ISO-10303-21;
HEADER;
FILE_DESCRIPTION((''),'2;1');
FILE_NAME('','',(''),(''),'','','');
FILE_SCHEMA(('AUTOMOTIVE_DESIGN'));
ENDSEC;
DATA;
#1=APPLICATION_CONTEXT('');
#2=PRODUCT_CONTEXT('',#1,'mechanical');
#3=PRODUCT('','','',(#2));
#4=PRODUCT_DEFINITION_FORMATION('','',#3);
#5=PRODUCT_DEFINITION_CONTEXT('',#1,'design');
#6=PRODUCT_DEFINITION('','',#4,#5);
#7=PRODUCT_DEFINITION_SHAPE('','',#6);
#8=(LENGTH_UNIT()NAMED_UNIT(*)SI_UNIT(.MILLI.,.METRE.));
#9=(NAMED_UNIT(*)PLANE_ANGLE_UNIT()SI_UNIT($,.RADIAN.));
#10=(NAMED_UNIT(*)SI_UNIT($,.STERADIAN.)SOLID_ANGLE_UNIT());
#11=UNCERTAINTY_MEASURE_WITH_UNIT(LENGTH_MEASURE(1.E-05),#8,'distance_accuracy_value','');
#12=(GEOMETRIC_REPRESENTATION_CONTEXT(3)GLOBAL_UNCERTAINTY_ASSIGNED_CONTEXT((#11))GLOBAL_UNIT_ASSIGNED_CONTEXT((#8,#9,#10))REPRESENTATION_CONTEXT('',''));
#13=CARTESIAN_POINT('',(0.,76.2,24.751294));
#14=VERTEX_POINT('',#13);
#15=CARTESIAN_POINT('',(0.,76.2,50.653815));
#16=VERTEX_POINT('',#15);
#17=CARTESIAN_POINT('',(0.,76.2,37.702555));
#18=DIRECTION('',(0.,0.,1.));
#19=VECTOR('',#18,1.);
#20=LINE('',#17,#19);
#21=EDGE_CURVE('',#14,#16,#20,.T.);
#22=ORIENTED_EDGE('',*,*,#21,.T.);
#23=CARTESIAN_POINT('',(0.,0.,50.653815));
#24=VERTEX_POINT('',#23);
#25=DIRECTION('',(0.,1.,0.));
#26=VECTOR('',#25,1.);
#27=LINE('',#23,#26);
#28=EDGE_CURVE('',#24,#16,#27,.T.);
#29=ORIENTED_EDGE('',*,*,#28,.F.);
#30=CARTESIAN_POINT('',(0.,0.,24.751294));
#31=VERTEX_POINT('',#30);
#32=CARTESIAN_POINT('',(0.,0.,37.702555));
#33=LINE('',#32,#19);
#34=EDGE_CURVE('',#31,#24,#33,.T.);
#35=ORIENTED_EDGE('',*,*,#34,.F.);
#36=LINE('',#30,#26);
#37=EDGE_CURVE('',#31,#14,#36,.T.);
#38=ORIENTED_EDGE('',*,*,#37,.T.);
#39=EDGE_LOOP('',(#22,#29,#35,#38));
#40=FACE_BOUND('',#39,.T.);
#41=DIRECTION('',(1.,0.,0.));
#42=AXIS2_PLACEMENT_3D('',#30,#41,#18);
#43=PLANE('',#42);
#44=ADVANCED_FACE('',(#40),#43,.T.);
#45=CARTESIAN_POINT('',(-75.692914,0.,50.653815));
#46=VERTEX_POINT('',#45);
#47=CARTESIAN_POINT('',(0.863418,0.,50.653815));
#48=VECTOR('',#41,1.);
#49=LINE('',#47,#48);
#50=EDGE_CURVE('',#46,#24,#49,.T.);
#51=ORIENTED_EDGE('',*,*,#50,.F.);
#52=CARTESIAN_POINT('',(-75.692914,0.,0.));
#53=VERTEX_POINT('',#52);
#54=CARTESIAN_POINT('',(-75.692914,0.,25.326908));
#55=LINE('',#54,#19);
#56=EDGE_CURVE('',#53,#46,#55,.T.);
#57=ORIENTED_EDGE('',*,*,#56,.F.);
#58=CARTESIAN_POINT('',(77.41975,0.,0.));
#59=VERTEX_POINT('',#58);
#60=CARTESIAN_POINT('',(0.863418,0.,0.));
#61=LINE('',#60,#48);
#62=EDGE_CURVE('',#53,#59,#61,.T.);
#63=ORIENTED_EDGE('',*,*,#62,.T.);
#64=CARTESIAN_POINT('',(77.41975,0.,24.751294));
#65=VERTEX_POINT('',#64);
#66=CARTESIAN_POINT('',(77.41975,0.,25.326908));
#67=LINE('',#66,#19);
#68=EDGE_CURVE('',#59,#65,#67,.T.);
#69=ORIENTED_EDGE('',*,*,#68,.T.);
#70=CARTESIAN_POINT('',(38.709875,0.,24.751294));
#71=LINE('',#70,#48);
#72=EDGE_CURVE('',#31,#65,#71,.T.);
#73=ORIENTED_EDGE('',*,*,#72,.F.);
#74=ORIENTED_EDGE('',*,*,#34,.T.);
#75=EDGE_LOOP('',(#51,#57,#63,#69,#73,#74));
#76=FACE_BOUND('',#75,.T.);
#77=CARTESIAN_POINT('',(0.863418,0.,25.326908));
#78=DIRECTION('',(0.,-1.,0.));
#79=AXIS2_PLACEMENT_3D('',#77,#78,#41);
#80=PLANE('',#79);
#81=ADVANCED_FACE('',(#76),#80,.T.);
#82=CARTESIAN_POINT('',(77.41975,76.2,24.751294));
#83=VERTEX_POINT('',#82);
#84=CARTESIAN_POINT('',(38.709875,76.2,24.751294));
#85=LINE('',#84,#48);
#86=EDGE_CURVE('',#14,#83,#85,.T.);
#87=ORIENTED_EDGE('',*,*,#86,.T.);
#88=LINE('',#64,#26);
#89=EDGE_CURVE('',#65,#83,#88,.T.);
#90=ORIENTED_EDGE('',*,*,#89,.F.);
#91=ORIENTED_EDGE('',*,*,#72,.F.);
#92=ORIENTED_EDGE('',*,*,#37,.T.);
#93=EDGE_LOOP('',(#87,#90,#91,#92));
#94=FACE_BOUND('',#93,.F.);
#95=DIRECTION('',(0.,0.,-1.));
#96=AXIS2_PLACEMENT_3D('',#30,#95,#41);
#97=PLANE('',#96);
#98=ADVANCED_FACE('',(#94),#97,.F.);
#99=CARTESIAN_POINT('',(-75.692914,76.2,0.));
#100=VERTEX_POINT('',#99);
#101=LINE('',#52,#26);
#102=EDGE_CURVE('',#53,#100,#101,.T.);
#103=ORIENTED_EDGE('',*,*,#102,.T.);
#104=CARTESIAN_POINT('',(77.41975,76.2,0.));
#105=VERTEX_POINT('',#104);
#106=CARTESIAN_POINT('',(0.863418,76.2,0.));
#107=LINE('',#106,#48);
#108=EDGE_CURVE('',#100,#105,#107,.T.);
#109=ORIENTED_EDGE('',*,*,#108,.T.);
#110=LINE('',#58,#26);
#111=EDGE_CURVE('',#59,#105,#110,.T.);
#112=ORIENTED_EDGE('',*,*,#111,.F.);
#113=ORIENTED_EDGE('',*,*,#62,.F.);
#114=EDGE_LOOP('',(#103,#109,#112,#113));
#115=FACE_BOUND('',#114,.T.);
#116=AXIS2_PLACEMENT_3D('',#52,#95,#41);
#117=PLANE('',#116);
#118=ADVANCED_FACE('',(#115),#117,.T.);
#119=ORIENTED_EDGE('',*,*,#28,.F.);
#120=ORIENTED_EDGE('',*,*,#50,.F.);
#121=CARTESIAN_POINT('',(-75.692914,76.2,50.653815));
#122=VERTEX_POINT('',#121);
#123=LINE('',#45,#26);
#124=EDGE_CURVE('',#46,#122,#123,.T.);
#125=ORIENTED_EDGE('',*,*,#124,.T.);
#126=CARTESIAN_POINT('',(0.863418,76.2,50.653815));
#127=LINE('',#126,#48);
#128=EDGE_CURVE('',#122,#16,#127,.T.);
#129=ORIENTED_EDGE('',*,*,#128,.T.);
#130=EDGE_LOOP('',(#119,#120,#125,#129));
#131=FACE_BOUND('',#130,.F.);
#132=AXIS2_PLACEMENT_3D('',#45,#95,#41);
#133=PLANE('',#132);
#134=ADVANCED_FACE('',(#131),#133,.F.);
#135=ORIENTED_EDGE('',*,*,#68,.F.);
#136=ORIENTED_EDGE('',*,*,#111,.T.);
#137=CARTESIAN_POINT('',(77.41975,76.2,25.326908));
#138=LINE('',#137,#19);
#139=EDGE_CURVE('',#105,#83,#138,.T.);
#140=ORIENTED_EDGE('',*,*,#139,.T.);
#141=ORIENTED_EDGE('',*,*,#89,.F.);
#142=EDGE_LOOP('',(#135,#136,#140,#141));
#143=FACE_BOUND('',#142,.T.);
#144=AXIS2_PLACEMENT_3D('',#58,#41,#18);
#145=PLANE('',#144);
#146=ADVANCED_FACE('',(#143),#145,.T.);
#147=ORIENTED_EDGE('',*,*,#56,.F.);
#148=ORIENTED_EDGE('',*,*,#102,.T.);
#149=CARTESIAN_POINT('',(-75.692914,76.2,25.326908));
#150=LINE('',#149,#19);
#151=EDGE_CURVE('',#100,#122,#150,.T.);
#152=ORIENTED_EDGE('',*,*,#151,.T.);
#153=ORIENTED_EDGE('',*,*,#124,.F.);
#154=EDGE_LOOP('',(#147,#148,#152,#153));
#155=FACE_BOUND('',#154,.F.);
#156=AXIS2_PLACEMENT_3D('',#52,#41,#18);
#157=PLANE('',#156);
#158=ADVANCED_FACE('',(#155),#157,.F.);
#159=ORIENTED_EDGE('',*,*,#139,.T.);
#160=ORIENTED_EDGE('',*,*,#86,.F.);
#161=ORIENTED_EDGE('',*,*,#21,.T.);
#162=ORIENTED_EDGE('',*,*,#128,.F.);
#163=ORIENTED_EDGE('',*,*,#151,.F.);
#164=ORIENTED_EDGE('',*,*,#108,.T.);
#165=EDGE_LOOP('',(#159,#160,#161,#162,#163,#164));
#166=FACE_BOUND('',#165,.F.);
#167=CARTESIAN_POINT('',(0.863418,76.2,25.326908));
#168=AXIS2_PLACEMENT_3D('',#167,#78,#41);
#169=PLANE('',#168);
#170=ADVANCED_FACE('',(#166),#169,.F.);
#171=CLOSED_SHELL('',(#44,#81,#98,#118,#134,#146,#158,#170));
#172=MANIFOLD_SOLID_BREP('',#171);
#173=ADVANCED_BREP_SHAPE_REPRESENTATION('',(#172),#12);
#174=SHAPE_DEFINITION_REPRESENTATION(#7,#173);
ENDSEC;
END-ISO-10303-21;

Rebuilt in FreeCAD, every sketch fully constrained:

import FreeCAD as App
import Part
import Sketcher
Q = App.Units.Quantity

doc = App.newDocument("Part")
body = doc.addObject("PartDesign::Body", "Body")

# Sketch on XZ plane
sketch1 = body.newObject("Sketcher::SketchObject", "Sketch")
sketch1.AttachmentSupport = (doc.getObject("XZ_Plane"), [""])
sketch1.MapMode = "FlatFace"
sketch1.addGeometry([
    Part.LineSegment(App.Vector(0, 26, 0), App.Vector(0, 0, 0)),
    Part.LineSegment(App.Vector(0, 0, 0), App.Vector(76, 0, 0)),
    Part.LineSegment(App.Vector(76, 0, 0), App.Vector(76, 26, 0)),
    Part.LineSegment(App.Vector(76, 26, 0), App.Vector(0, 26, 0)),
], False)
sketch1.addConstraint([
    Sketcher.Constraint("Coincident", 0, 2, 1, 1),
    Sketcher.Constraint("Coincident", 1, 2, 2, 1),
    Sketcher.Constraint("Coincident", 2, 2, 3, 1),
    Sketcher.Constraint("Coincident", 3, 2, 0, 1),
    Sketcher.Constraint("Vertical", 0),
    Sketcher.Constraint("Horizontal", 1),
    Sketcher.Constraint("Vertical", 2),
    Sketcher.Constraint("Horizontal", 3),
    Sketcher.Constraint("Coincident", 0, 2, -1, 1),
    Sketcher.Constraint("DistanceX", 1, 1, 1, 2, 76.268524),
    Sketcher.Constraint("DistanceY", 0, 2, 0, 1, 25.614712),
])
pad1 = body.newObject("PartDesign::Pad", "Pad")
pad1.Profile = sketch1
pad1.Length = Q("3 in")
body2 = doc.addObject("PartDesign::Body", "Body001")

# Sketch on XZ plane
sketch2 = body2.newObject("Sketcher::SketchObject", "Sketch001")
sketch2.AttachmentSupport = (doc.getObject("XZ_Plane001"), [""])
sketch2.MapMode = "FlatFace"
sketch2.addGeometry([
    Part.LineSegment(App.Vector(-76, 51, 0), App.Vector(-76, 0, 0)),
    Part.LineSegment(App.Vector(-76, 0, 0), App.Vector(77, 0, 0)),
    Part.LineSegment(App.Vector(77, 0, 0), App.Vector(77, 51, 0)),
    Part.LineSegment(App.Vector(77, 51, 0), App.Vector(-76, 51, 0)),
], False)
sketch2.addConstraint([
    Sketcher.Constraint("Coincident", 0, 2, 1, 1),
    Sketcher.Constraint("Coincident", 1, 2, 2, 1),
    Sketcher.Constraint("Coincident", 2, 2, 3, 1),
    Sketcher.Constraint("Coincident", 3, 2, 0, 1),
    Sketcher.Constraint("Vertical", 0),
    Sketcher.Constraint("Horizontal", 1),
    Sketcher.Constraint("Vertical", 2),
    Sketcher.Constraint("Horizontal", 3),
    Sketcher.Constraint("PointOnObject", 0, 2, -1),
    Sketcher.Constraint("DistanceX", 1, 1, 1, 2, 153.112665),
    Sketcher.Constraint("DistanceY", 0, 2, 0, 1, 50.653815),
    Sketcher.Constraint("DistanceX", -1, 1, 1, 2, 77.41975),
])
pad2 = body2.newObject("PartDesign::Pad", "Pad001")
pad2.Profile = sketch2
pad2.Length = Q("3 in")
pad2.Reversed = True

# Sketch on XZ plane
sketch3 = body2.newObject("Sketcher::SketchObject", "Sketch002")
sketch3.AttachmentSupport = (doc.getObject("XZ_Plane001"), [""])
sketch3.MapMode = "FlatFace"
sketch3.addGeometry([
    Part.LineSegment(App.Vector(0, 51, 0), App.Vector(0, 25, 0)),
    Part.LineSegment(App.Vector(0, 25, 0), App.Vector(77, 25, 0)),
    Part.LineSegment(App.Vector(77, 25, 0), App.Vector(77, 51, 0)),
    Part.LineSegment(App.Vector(77, 51, 0), App.Vector(0, 51, 0)),
], False)
sketch3.addConstraint([
    Sketcher.Constraint("Coincident", 0, 2, 1, 1),
    Sketcher.Constraint("Coincident", 1, 2, 2, 1),
    Sketcher.Constraint("Coincident", 2, 2, 3, 1),
    Sketcher.Constraint("Coincident", 3, 2, 0, 1),
    Sketcher.Constraint("Vertical", 0),
    Sketcher.Constraint("Horizontal", 1),
    Sketcher.Constraint("Vertical", 2),
    Sketcher.Constraint("Horizontal", 3),
    Sketcher.Constraint("PointOnObject", 0, 2, -2),
    Sketcher.Constraint("DistanceX", 1, 1, 1, 2, 77.41975),
    Sketcher.Constraint("DistanceY", 0, 2, 0, 1, 25.902521),
    Sketcher.Constraint("DistanceY", -1, 1, 0, 2, 24.751294),
])
pocket1 = body2.newObject("PartDesign::Pocket", "Pocket")
pocket1.Profile = sketch3
pocket1.Type = "ThroughAll"
body.Visibility = False

doc.recompute()
